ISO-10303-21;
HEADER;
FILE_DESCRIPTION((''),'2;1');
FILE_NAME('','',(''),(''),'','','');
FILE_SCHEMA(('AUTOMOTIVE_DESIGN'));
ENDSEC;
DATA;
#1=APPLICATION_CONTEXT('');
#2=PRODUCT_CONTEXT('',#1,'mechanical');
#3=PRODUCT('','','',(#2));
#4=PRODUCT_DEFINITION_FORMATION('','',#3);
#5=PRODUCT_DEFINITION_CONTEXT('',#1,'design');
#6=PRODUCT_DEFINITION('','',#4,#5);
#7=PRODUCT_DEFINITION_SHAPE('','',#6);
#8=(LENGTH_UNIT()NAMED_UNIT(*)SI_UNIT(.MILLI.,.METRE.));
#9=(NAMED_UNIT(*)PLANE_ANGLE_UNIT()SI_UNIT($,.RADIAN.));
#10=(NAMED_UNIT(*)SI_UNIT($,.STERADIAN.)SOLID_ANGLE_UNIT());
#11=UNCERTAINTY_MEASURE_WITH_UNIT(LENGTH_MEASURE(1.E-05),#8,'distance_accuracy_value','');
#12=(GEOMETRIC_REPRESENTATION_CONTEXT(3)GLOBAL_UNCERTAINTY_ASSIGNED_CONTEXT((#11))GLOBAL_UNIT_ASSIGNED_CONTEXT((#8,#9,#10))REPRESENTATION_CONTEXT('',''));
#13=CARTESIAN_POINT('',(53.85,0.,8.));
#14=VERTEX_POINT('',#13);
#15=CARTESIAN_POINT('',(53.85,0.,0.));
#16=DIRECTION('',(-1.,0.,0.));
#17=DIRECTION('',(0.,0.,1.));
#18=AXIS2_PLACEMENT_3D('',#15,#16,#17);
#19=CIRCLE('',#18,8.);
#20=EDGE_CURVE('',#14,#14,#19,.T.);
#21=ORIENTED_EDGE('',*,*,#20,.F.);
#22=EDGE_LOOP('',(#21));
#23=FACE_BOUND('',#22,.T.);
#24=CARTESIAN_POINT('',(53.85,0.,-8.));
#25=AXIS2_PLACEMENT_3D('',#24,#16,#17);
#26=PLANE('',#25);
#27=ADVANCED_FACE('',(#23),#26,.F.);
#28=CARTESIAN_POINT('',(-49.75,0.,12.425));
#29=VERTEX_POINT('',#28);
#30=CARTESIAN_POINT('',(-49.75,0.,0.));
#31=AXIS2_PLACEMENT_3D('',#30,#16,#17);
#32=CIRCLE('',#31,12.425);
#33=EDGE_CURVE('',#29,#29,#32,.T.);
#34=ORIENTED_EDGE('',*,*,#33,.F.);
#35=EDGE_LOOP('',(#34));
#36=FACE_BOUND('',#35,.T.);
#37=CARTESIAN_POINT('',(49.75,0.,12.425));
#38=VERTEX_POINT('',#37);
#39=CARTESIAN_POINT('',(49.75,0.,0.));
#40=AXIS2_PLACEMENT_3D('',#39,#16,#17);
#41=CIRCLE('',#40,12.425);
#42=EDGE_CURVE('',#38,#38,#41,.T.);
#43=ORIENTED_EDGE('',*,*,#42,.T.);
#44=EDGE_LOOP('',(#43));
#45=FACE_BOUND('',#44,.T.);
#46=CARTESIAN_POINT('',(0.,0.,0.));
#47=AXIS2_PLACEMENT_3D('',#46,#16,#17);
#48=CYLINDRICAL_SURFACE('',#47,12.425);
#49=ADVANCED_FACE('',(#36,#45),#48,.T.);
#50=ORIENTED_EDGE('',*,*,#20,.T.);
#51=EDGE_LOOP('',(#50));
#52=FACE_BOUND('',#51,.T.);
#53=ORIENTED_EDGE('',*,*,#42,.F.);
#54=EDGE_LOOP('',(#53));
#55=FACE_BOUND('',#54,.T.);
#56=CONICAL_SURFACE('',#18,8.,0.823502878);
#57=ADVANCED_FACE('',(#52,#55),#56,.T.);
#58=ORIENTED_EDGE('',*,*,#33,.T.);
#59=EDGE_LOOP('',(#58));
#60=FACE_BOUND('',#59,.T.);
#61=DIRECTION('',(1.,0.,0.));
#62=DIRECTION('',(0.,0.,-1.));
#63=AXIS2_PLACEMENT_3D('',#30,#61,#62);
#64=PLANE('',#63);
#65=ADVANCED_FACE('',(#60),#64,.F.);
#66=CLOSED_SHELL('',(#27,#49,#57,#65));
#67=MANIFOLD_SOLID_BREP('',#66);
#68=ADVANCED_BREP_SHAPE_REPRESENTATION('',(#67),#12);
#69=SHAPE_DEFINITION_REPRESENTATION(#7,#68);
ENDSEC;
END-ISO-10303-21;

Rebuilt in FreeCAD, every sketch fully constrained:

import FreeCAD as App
import Part
import Sketcher
from FreeCAD import Vector
Q = App.Units.Quantity


def add_polygon(sketch, points):
    """Adds a closed chain of lines whose ends are joined by coincident constraints."""
    first, n = sketch.GeometryCount, len(points)
    for a, b in zip(points, points[1:] + points[:1]):
        sketch.addGeometry(Part.LineSegment(App.Vector(*a, 0), App.Vector(*b, 0)), False)
    for i in range(n):
        sketch.addConstraint(Sketcher.Constraint("Coincident", first + i, 2, first + (i + 1) % n, 1))

doc = App.newDocument("Part")
body = doc.addObject("PartDesign::Body", "Body")

# Sketch on XZ plane
sketch1 = body.newObject("Sketcher::SketchObject", "Sketch")
sketch1.AttachmentSupport = (doc.getObject("XZ_Plane"), [""])
sketch1.MapMode = "FlatFace"
add_polygon(sketch1, [(-50, -12), (-50, 0), (54, 0), (54, -8), (50, -12)])  # lines 0-4
sketch1.addConstraint(Sketcher.Constraint("Vertical", 0))
sketch1.addConstraint(Sketcher.Constraint("Horizontal", 1))
sketch1.addConstraint(Sketcher.Constraint("Vertical", 2))
sketch1.addConstraint(Sketcher.Constraint("Horizontal", 4))
sketch1.addConstraint(Sketcher.Constraint("PointOnObject", 0, 2, -1))
sketch1.addConstraint(Sketcher.Constraint("DistanceY", 2, 2, 2, 1, Q("8 mm")))
sketch1.addConstraint(Sketcher.Constraint("DistanceX", 1, 1, 1, 2, Q("103.6 mm")))
sketch1.addConstraint(Sketcher.Constraint("DistanceX", 4, 2, 4, 1, Q("99.5 mm")))
sketch1.addConstraint(Sketcher.Constraint("DistanceY", 0, 1, 0, 2, Q("12.425 mm")))
sketch1.addConstraint(Sketcher.Constraint("DistanceX", 0, 2, -1, 1, Q("49.75 mm")))
revolution = body.newObject("PartDesign::Revolution", "Revolution")
revolution.Profile = sketch1
revolution.ReferenceAxis = (sketch1, ["H_Axis"])
revolution.Angle = 360

doc.recompute()
